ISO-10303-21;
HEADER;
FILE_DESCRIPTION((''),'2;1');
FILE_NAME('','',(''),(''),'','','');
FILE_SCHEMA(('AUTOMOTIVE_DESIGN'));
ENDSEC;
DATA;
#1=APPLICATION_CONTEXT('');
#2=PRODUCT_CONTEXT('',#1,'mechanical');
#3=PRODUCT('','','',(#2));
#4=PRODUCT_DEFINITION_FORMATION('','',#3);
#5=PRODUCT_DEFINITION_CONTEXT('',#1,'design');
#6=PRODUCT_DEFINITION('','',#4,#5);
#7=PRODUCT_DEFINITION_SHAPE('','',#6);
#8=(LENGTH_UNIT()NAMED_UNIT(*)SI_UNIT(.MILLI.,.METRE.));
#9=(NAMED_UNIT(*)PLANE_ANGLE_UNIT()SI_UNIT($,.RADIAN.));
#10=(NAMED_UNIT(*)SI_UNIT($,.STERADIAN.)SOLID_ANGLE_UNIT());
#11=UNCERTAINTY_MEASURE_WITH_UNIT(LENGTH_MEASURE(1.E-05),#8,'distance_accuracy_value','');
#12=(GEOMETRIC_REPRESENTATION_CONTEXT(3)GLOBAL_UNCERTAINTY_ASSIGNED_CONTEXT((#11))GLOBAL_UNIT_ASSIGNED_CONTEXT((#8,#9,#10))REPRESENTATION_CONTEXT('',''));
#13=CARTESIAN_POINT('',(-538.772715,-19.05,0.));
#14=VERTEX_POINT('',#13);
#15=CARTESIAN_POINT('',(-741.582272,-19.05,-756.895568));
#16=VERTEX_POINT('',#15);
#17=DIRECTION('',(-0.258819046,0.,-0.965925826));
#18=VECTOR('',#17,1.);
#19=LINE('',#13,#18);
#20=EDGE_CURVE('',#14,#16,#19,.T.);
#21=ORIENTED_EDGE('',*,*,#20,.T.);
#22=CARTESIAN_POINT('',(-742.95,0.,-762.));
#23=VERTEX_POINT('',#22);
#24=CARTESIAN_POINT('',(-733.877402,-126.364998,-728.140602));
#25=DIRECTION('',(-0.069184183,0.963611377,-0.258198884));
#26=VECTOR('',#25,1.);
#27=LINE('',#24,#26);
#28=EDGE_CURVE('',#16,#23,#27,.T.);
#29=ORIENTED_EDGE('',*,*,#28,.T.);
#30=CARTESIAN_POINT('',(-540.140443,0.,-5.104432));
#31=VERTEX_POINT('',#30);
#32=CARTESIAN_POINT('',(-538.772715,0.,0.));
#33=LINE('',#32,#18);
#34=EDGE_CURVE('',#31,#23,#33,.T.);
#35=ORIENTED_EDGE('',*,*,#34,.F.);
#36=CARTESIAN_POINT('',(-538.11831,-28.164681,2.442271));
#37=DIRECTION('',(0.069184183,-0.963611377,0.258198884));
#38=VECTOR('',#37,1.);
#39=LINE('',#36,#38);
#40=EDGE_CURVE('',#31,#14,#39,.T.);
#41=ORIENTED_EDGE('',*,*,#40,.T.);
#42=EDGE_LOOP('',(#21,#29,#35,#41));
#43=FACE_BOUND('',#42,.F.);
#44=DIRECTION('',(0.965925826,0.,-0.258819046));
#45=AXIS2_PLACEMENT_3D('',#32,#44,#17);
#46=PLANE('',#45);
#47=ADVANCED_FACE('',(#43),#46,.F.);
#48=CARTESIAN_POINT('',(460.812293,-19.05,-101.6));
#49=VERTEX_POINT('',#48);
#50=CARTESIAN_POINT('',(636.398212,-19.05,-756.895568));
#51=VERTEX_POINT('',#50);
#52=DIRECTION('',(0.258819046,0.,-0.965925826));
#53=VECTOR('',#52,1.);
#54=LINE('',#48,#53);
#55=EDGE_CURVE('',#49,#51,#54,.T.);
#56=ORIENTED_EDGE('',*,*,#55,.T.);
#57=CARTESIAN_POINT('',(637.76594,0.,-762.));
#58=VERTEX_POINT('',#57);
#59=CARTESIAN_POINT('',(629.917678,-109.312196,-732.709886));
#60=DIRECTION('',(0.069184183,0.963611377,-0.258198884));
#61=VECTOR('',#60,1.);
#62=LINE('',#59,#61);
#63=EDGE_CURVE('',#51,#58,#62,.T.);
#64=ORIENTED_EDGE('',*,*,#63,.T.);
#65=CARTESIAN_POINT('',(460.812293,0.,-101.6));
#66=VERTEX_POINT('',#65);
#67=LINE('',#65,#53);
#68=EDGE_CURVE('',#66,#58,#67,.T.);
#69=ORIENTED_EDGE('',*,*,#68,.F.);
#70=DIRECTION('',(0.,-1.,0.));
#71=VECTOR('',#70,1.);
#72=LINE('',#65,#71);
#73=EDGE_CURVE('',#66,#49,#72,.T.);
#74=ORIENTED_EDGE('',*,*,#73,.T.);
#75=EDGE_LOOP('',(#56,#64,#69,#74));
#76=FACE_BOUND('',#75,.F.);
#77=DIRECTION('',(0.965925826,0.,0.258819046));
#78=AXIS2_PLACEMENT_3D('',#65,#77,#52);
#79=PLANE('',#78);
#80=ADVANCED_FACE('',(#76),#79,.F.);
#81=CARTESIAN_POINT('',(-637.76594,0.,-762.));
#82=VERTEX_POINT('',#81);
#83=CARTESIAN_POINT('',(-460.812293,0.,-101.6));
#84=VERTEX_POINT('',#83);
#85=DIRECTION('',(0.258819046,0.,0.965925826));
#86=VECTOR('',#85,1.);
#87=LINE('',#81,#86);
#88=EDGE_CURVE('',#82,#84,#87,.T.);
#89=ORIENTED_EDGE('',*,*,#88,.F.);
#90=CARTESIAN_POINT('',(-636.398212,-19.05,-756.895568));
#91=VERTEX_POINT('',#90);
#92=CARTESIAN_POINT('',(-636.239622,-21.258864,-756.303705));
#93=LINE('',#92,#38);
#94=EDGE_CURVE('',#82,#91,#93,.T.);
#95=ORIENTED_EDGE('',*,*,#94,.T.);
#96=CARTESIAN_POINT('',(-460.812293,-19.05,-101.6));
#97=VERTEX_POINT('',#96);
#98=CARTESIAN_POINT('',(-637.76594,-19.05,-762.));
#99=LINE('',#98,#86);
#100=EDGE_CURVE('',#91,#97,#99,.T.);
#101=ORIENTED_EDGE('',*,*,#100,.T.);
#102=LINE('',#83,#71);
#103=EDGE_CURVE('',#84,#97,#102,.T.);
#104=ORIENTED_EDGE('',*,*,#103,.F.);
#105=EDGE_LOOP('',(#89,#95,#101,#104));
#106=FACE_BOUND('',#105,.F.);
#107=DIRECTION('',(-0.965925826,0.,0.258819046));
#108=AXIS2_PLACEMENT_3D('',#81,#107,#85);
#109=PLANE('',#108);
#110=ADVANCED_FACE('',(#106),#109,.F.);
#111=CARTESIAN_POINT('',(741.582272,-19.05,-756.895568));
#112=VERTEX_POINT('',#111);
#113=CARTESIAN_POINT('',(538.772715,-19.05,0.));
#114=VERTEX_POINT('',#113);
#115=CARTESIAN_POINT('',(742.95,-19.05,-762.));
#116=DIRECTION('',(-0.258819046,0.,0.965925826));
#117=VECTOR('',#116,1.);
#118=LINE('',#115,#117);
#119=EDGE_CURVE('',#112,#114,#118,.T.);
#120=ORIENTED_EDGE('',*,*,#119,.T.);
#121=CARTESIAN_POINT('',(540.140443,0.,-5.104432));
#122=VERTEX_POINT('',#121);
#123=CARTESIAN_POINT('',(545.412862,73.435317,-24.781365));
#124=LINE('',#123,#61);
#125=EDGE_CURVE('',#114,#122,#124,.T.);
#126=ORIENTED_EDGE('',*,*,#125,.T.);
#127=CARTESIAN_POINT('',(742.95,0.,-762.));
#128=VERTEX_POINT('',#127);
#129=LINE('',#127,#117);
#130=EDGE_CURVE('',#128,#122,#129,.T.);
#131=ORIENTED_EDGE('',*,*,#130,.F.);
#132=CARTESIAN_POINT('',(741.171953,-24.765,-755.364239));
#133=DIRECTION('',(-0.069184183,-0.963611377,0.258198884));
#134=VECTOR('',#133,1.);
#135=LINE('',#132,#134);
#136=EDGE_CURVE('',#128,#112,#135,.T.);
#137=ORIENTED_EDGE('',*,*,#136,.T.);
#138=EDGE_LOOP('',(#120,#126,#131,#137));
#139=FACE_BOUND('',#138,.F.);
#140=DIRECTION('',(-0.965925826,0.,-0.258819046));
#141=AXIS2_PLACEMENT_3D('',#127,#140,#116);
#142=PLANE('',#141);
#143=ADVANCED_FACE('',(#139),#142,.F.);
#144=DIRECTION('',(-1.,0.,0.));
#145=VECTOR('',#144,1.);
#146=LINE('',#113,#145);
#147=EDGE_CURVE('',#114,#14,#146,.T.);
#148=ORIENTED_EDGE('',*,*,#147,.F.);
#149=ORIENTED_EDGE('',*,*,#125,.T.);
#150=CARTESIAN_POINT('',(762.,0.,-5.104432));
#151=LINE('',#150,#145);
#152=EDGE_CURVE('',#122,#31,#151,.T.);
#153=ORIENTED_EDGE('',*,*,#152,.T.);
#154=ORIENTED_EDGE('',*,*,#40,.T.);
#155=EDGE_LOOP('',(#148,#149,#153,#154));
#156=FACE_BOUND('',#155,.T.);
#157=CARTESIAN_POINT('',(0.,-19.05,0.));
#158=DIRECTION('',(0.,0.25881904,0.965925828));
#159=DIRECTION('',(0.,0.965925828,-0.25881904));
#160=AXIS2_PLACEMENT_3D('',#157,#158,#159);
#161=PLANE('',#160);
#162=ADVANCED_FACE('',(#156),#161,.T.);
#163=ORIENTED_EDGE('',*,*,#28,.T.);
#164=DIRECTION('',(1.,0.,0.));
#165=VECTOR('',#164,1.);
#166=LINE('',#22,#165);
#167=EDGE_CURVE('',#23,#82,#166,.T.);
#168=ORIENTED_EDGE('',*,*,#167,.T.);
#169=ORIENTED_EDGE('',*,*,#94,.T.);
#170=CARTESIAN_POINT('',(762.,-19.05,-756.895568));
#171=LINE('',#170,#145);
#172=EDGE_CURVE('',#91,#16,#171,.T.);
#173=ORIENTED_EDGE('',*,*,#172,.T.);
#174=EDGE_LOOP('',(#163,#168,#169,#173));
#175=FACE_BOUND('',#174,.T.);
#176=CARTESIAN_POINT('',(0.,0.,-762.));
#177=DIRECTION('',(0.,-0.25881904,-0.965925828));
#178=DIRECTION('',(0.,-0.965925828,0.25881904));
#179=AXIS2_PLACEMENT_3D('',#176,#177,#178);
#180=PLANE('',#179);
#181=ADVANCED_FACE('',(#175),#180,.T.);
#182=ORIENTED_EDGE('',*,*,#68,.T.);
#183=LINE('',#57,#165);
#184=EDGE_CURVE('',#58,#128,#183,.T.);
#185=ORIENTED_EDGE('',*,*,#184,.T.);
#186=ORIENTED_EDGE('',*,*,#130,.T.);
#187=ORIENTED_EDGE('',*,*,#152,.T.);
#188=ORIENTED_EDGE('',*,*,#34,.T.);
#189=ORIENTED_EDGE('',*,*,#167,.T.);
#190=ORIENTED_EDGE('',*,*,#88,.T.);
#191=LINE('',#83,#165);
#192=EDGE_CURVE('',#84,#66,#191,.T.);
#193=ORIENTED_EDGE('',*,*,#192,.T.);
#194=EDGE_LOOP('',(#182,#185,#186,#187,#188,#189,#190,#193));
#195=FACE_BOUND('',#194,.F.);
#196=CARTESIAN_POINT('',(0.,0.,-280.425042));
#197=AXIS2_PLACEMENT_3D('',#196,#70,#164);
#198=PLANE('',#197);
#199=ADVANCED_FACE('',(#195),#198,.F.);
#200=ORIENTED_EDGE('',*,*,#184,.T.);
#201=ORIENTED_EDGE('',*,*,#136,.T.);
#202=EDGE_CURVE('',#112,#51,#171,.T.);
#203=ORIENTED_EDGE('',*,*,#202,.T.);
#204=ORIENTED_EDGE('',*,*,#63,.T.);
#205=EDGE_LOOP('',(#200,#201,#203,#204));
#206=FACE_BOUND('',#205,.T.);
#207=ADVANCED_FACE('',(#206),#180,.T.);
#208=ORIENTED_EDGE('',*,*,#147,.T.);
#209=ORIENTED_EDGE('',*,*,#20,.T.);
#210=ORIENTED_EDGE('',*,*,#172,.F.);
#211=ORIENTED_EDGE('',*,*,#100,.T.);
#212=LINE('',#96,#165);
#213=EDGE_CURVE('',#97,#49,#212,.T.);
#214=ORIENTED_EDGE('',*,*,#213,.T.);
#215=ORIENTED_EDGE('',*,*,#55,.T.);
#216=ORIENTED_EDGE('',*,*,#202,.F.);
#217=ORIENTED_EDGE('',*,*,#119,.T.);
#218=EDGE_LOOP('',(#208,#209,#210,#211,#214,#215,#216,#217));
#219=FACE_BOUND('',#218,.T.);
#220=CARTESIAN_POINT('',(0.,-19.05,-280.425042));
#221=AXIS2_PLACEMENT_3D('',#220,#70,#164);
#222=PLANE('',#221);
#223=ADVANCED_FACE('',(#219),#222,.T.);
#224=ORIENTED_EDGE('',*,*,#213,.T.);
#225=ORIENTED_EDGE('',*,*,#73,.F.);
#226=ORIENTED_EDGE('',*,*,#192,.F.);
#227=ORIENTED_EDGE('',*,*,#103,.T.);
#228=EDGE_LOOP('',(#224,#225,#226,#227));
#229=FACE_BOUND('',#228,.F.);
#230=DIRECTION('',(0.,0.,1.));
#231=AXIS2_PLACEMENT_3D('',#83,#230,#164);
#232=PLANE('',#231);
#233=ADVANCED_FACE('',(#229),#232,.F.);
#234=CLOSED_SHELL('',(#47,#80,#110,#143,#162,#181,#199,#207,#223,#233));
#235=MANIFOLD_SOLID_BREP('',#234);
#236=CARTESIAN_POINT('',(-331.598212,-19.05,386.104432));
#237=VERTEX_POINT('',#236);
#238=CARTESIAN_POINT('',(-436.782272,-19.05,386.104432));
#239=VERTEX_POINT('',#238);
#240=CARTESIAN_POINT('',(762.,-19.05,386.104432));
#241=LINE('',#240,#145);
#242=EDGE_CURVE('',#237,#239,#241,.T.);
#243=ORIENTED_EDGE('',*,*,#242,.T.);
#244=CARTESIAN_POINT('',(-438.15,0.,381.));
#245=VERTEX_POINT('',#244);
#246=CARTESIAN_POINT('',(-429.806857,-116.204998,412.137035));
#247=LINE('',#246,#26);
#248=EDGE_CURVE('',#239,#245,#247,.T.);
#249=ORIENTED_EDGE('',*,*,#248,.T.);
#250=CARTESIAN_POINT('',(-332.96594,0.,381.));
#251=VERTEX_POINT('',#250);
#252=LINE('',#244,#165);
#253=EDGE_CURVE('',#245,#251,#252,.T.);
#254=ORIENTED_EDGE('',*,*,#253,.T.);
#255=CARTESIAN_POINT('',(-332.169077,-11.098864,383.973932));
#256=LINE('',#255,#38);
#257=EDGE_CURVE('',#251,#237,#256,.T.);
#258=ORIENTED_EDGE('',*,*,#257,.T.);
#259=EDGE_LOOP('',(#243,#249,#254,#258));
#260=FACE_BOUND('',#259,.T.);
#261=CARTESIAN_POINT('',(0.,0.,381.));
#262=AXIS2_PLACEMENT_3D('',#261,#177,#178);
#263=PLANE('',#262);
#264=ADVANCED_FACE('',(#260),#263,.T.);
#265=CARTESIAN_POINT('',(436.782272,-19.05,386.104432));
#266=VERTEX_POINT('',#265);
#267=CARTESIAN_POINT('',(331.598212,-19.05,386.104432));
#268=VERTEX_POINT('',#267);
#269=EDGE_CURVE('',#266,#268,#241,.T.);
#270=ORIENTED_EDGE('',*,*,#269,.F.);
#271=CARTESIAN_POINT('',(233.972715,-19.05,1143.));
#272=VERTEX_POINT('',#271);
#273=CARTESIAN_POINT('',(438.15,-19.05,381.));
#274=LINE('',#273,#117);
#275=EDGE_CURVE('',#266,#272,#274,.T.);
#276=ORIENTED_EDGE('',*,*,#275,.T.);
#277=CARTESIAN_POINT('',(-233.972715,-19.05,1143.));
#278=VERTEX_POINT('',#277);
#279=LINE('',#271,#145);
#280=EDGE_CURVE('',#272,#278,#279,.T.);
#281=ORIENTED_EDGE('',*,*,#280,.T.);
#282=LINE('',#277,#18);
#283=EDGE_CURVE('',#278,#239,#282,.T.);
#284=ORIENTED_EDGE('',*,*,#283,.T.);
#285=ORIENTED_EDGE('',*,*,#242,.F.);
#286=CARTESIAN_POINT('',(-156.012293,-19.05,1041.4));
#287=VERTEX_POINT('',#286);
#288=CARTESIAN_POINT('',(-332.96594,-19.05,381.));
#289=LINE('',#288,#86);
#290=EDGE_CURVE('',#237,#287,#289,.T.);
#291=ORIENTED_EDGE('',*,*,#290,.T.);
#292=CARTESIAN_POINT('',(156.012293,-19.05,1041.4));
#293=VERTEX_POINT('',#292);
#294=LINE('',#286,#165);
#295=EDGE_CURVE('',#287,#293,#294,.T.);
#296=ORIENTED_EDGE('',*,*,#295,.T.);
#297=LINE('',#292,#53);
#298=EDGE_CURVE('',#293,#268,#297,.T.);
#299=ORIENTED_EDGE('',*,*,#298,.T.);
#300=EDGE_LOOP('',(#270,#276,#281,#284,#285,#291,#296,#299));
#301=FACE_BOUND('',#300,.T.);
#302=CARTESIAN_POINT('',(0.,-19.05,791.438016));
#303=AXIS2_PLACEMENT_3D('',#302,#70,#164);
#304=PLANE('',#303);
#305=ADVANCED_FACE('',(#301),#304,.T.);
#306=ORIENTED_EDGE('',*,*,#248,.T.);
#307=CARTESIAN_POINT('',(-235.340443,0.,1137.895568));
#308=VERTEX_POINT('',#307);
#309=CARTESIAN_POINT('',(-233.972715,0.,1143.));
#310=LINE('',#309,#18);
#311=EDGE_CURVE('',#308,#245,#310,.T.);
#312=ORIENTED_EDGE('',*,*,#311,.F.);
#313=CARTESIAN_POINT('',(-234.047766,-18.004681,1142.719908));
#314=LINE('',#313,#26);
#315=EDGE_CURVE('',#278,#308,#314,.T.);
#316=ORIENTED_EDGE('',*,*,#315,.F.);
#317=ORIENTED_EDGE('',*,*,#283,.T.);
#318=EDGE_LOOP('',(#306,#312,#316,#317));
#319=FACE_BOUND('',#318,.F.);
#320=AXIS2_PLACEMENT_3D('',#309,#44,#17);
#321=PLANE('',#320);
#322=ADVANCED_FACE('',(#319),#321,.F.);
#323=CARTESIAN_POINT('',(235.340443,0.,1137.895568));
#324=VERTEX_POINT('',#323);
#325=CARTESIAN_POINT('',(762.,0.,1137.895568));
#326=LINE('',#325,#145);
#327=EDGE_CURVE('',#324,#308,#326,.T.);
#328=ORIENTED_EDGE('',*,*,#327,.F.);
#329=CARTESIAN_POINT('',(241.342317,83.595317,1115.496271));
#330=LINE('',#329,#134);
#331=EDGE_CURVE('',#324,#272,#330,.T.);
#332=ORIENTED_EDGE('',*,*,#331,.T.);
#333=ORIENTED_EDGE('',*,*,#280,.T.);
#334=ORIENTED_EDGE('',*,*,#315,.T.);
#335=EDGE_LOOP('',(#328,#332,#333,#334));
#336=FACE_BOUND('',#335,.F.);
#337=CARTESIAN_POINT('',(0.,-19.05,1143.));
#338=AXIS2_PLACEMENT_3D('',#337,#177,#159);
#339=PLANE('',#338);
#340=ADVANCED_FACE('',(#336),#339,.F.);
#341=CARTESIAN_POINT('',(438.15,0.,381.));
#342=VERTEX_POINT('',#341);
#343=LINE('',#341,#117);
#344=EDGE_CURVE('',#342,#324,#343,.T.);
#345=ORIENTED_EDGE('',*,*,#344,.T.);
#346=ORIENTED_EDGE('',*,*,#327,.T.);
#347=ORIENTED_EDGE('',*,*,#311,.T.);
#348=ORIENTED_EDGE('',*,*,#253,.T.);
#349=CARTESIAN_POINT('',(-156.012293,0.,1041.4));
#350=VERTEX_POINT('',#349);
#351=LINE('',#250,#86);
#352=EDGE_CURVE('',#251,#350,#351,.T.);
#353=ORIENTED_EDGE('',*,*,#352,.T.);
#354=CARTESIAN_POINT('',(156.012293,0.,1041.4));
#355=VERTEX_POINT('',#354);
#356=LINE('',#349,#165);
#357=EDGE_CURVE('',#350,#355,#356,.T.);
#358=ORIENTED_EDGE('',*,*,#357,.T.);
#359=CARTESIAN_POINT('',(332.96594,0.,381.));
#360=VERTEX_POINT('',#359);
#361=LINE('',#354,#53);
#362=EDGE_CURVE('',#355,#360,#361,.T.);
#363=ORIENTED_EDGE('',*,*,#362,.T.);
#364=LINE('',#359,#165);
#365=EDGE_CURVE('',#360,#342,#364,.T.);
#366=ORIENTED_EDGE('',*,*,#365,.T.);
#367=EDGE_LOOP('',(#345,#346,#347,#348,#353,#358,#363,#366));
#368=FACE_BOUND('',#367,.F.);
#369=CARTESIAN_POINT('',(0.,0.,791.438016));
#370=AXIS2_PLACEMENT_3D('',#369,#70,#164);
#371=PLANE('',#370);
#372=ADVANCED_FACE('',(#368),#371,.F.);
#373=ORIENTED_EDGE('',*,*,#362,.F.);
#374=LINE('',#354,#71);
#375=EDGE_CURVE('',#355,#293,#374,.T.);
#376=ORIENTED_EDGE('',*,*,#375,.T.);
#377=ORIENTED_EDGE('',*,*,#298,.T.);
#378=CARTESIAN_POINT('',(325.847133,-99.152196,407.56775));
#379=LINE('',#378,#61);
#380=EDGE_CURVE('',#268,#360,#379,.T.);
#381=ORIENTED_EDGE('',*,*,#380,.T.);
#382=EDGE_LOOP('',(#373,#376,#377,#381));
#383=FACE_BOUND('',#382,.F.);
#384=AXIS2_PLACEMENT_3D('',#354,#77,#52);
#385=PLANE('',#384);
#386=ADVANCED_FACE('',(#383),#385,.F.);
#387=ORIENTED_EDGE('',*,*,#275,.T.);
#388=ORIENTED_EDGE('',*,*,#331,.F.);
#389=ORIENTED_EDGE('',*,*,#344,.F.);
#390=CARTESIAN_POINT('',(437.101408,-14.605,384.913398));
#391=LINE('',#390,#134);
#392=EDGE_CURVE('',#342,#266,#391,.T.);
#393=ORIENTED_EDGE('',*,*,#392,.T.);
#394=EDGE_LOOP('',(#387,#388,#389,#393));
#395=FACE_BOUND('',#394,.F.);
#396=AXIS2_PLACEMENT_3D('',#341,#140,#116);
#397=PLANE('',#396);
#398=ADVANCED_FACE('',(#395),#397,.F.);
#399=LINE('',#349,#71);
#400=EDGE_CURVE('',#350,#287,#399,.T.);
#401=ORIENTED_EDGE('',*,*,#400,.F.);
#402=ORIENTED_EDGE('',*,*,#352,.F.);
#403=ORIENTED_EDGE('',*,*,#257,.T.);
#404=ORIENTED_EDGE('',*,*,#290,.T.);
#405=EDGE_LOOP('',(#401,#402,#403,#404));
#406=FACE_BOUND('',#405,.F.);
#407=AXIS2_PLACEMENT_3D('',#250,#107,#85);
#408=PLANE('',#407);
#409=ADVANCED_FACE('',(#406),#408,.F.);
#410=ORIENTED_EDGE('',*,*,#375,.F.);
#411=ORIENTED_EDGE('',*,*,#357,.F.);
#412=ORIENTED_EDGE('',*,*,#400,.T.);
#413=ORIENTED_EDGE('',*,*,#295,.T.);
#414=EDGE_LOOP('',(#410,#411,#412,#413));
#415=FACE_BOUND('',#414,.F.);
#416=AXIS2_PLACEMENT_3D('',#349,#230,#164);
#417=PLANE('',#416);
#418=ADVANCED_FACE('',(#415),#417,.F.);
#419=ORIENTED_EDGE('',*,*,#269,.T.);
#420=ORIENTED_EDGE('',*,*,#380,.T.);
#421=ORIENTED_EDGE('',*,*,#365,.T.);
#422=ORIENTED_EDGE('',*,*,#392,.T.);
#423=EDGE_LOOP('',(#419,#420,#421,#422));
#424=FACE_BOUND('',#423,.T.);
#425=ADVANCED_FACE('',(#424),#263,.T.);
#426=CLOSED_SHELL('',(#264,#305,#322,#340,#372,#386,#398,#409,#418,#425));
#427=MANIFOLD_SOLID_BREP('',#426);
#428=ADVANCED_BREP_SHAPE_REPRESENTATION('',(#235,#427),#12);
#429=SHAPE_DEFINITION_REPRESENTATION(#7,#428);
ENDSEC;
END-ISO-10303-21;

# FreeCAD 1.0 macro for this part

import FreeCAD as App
import Part
import Sketcher
from FreeCAD import Vector
Q = App.Units.Quantity


def add_polygon(sketch, points):
    """Adds a closed chain of lines whose ends are joined by coincident constraints."""
    first, n = sketch.GeometryCount, len(points)
    for a, b in zip(points, points[1:] + points[:1]):
        sketch.addGeometry(Part.LineSegment(App.Vector(*a, 0), App.Vector(*b, 0)), False)
    for i in range(n):
        sketch.addConstraint(Sketcher.Constraint("Coincident", first + i, 2, first + (i + 1) % n, 1))

doc = App.newDocument("Part")
params = doc.addObject("Spreadsheet::Sheet", "Params")
for row, (alias, value) in enumerate([
    ("pad1_length", "0.75 in"),
    ("pad2_length", "0.75 in"),
    ("sketch3_width", "0.75 in"),
    ("pad3_length", "60 in"),
], start=1):
    params.set(f"A{row}", alias)
    params.set(f"B{row}", "=" + value)
    params.setAlias(f"B{row}", alias)

body = doc.addObject("PartDesign::Body", "Body")

# Sketch on XZ plane
sketch1 = body.newObject("Sketcher::SketchObject", "Sketch")
sketch1.AttachmentSupport = (doc.getObject("XZ_Plane"), [""])
sketch1.MapMode = "FlatFace"
add_polygon(sketch1, [(-539, 0), (-743, -762), (-638, -762), (-461, -102), (461, -102), (638, -762), (743, -762), (539, 0)])  # lines 0-7
sketch1.addConstraint([
    Sketcher.Constraint("Horizontal", 1),
    Sketcher.Constraint("Horizontal", 3),
    Sketcher.Constraint("Horizontal", 5),
    Sketcher.Constraint("Horizontal", 7),
    Sketcher.Constraint("Symmetric", 6, 2, 7, 2, -1, 1),
    Sketcher.Constraint("Symmetric", 1, 2, 4, 2, -2),
    Sketcher.Constraint("Parallel", 0, 2),
    Sketcher.Constraint("Parallel", 4, 6),
    Sketcher.Constraint("Equal", 1, 5),
    Sketcher.Constraint("DistanceY", 0, 2, -1, 1, Q("30 in")),
    Sketcher.Constraint("DistanceY", 2, 2, -1, 1, Q("4 in")),
    Sketcher.Constraint("Angle", 0, Q("-105 deg")),
    Sketcher.Constraint("DistanceX", 0, 2, 5, 2, Q("58.5 in")),
    Sketcher.Constraint("DistanceX", 1, 1, 1, 2, 105.18406),
])
pad1 = body.newObject("PartDesign::Pad", "Pad")
pad1.Profile = sketch1
pad1.setExpression("Length", "Params.pad1_length")
body2 = doc.addObject("PartDesign::Body", "Body001")

# Sketch on XZ plane
sketch2 = body2.newObject("Sketcher::SketchObject", "Sketch001")
sketch2.AttachmentSupport = (doc.getObject("XZ_Plane001"), [""])
sketch2.MapMode = "FlatFace"
add_polygon(sketch2, [(-156, 1041), (156, 1041), (333, 381), (438, 381), (234, 1143), (-234, 1143), (-438, 381), (-333, 381)])  # lines 0-7
sketch2.addConstraint([
    Sketcher.Constraint("Horizontal", 0),
    Sketcher.Constraint("Horizontal", 2),
    Sketcher.Constraint("Horizontal", 4),
    Sketcher.Constraint("Horizontal", 6),
    Sketcher.Constraint("Symmetric", 2, 2, 5, 2, -2),
    Sketcher.Constraint("Parallel", 1, 3),
    Sketcher.Constraint("Parallel", 5, 7),
    Sketcher.Constraint("Equal", 2, 6),
    Sketcher.Constraint("Equal", 3, 5),
    Sketcher.Constraint("DistanceY", -1, 1, 0, 2, Q("41 in")),
    Sketcher.Constraint("DistanceY", -1, 1, 1, 2, Q("15 in")),
    Sketcher.Constraint("DistanceY", -1, 1, 3, 2, Q("45 in")),
    Sketcher.Constraint("Angle", 1, Q("-75 deg")),
    Sketcher.Constraint("DistanceX", 5, 2, 2, 2, Q("34.5 in")),
    Sketcher.Constraint("DistanceX", 2, 1, 2, 2, 105.18406),
])
pad2 = body2.newObject("PartDesign::Pad", "Pad001")
pad2.Profile = sketch2
pad2.setExpression("Length", "Params.pad2_length")
body3 = doc.addObject("PartDesign::Body", "Body002")
body3.AllowCompound = True

# Sketch on YZ plane
sketch3 = body3.newObject("Sketcher::SketchObject", "Sketch002")
sketch3.AttachmentSupport = (doc.getObject("YZ_Plane002"), [""])
sketch3.MapMode = "FlatFace"
add_polygon(sketch3, [(-19, -757), (-19, -762), (0, -762)])  # lines 0-2
add_polygon(sketch3, [(0, -5), (0, 0), (-19, 0)])  # lines 3-5
add_polygon(sketch3, [(-19, 381), (0, 381), (-19, 386)])  # lines 6-8
add_polygon(sketch3, [(0, 1143), (-19, 1143), (0, 1138)])  # lines 9-11
sketch3.addConstraint([
    Sketcher.Constraint("Vertical", 0),
    Sketcher.Constraint("Horizontal", 1),
    Sketcher.Constraint("Vertical", 3),
    Sketcher.Constraint("Horizontal", 4),
    Sketcher.Constraint("Horizontal", 6),
    Sketcher.Constraint("Vertical", 8),
    Sketcher.Constraint("Horizontal", 9),
    Sketcher.Constraint("Vertical", 11),
    Sketcher.Constraint("Coincident", 3, 2, -1, 1),
    Sketcher.Constraint("PointOnObject", 1, 2, -2),
    Sketcher.Constraint("PointOnObject", 6, 2, -2),
    Sketcher.Constraint("PointOnObject", 10, 2, -2),
    Sketcher.Constraint("Parallel", 2, 5),
    Sketcher.Constraint("Parallel", 5, 7),
    Sketcher.Constraint("Parallel", 7, 10),
    Sketcher.Constraint("Vertical", 2, 2, 4, 2),
    Sketcher.Constraint("Vertical", 4, 2, 7, 2),
    Sketcher.Constraint("Vertical", 8, 2, 9, 2),
    Sketcher.Constraint("DistanceY", 0, 2, -1, 1, Q("30 in")),
    Sketcher.Constraint("DistanceY", -1, 1, 6, 2, Q("15 in")),
    Sketcher.Constraint("DistanceY", -1, 1, 9, 2, Q("45 in")),
    Sketcher.Constraint("Angle", 2, Q("165 deg")),
    Sketcher.Constraint("DistanceX", 1, 1, 1, 2, Q("0.75 in")),
])
sketch3.setExpression("Constraints[34]", "Params.sketch3_width")
pad3 = body3.newObject("PartDesign::Pad", "Pad002")
pad3.Profile = sketch3
pad3.setExpression("Length", "Params.pad3_length")
pad3.Midplane = True
doc.recompute()

body4 = doc.addObject("PartDesign::Body", "Body003")
body4.BaseFeature = body3
boolean = body.newObject("PartDesign::Boolean", "Boolean")
boolean.Type = "Cut"
boolean.addObjects([body4])
doc.recompute()

boolean2 = body2.newObject("PartDesign::Boolean", "Boolean001")
boolean2.Type = "Cut"
boolean2.addObjects([body3])

doc.recompute()
